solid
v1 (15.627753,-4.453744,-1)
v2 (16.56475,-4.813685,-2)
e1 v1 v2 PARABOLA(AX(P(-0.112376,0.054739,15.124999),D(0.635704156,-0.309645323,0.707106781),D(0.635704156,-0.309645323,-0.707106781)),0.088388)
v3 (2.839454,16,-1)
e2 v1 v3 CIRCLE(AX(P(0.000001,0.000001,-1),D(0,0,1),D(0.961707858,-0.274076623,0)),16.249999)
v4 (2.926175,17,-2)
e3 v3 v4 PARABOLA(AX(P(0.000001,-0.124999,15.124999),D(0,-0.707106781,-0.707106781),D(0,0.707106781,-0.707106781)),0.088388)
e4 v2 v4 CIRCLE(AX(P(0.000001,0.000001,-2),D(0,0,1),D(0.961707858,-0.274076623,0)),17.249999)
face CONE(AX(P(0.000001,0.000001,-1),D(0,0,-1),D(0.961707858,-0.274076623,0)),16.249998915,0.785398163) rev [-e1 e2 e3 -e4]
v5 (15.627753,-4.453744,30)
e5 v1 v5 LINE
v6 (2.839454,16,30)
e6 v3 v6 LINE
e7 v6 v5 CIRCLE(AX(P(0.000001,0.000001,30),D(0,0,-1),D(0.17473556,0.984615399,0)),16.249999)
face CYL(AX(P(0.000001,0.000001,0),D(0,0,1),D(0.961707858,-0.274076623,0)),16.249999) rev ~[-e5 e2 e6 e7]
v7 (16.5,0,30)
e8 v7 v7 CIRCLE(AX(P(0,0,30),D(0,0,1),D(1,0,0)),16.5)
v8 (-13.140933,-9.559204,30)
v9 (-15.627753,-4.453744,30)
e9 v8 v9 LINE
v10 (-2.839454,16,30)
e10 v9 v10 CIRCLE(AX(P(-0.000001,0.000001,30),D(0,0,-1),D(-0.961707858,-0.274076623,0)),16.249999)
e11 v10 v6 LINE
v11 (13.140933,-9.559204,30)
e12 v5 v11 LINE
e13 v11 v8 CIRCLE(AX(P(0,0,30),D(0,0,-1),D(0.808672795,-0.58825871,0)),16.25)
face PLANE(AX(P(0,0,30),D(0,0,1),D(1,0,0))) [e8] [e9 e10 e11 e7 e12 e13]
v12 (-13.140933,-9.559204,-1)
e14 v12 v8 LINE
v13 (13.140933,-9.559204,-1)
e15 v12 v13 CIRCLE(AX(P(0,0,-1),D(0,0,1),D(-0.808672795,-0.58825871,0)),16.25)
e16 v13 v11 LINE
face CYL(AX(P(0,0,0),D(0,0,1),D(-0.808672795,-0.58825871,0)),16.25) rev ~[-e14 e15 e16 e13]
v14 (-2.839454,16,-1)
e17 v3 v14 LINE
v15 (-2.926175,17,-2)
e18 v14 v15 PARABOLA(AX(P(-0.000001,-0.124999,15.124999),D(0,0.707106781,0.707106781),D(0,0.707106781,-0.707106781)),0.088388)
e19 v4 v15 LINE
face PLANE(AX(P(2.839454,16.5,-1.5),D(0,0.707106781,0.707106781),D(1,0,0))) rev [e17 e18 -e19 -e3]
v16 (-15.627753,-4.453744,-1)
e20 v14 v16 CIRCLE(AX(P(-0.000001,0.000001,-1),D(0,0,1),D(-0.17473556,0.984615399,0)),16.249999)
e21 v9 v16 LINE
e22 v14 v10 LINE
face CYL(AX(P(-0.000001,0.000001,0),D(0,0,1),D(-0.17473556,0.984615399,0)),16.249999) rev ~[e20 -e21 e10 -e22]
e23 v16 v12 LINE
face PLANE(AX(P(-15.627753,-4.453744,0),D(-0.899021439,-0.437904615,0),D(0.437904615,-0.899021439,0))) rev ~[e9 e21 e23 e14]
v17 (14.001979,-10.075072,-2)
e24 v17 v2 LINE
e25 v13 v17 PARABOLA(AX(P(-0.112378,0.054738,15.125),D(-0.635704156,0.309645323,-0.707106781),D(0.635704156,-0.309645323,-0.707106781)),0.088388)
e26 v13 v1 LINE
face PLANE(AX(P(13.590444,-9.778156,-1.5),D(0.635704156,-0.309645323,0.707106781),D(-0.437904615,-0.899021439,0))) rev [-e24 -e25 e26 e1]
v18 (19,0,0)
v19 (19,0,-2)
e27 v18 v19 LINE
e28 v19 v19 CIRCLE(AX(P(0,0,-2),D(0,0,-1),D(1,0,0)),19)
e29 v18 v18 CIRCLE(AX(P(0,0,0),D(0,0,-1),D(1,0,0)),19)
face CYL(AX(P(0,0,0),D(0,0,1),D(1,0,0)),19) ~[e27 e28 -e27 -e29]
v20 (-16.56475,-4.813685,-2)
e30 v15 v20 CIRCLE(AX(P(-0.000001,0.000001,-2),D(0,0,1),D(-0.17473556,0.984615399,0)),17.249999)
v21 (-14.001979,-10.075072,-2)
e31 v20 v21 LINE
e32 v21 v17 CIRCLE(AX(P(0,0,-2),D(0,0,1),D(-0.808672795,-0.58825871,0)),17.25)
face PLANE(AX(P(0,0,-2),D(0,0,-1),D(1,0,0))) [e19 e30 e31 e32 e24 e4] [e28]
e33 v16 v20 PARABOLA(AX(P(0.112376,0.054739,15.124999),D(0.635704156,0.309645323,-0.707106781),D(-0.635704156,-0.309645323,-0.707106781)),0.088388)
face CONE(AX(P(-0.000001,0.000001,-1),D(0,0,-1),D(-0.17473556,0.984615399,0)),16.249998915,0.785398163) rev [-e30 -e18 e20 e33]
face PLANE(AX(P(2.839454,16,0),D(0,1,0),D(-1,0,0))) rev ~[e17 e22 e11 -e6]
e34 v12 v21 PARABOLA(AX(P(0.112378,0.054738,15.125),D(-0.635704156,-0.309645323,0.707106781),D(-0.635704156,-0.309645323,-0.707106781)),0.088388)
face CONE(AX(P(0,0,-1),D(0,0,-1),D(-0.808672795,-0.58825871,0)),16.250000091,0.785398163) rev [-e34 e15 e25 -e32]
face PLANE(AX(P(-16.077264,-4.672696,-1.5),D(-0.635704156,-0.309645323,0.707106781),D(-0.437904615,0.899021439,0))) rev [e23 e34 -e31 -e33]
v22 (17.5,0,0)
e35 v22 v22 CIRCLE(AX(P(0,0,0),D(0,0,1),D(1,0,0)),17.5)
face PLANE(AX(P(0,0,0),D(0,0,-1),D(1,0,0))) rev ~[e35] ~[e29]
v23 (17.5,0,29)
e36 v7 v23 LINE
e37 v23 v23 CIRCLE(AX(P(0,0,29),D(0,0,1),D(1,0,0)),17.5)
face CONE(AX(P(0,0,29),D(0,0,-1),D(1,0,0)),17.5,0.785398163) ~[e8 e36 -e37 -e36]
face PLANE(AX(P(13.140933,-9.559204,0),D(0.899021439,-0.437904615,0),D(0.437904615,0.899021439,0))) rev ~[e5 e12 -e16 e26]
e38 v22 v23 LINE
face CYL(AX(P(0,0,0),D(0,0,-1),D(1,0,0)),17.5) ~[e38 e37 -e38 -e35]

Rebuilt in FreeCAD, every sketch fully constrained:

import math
import FreeCAD as App
import Part
import Sketcher

V = App.Vector


def edges_at(feature, points):
    """Names of the edges that pass closest to the given points."""
    edges = feature.Shape.Edges
    near = lambda p: min(range(len(edges)), key=lambda i: edges[i].distToShape(Part.Vertex(*p))[0])
    return sorted({f"Edge{near(p) + 1}" for p in points})

doc = App.newDocument("Part")
params = doc.addObject("Spreadsheet::Sheet", "Params")
for row, (alias, value) in enumerate([
    ("sketch1_diameter", "35 mm"),
    ("sketch1_radius", "16.249999 mm"),
    ("pad1_length", "30 mm"),
    ("sketch2_diameter", "38 mm"),
    ("sketch2_radius", "16.249999 mm"),
    ("pad2_length", "2 mm"),
    ("chamfer_size", "1 mm"),
    ("chamfer2_size", "1 mm"),
], start=1):
    params.set(f"A{row}", alias)
    params.set(f"B{row}", "=" + value)
    params.setAlias(f"B{row}", alias)

body = doc.addObject("PartDesign::Body", "Body")

sketch1 = body.newObject("Sketcher::SketchObject", "Sketch")
sketch1.AttachmentSupport = (doc.getObject("XY_Plane"), [""])
sketch1.MapMode = "FlatFace"
sketch1.addGeometry(Part.Circle(V(0, 0, 0), V(0, 0, 1), 18), False)
sketch1.addGeometry(Part.LineSegment(V(-13, -10, 0), V(-16, -4, 0)), False)
sketch1.addGeometry(Part.ArcOfCircle(Part.Circle(V(0, 0, 0), V(0, 0, 1), 16), math.radians(100), math.radians(196)), False)
sketch1.addGeometry(Part.LineSegment(V(-3, 16, 0), V(3, 16, 0)), False)
sketch1.addGeometry(Part.ArcOfCircle(Part.Circle(V(0, 0, 0), V(0, 0, 1), 16), math.radians(-16), math.radians(80)), False)
sketch1.addGeometry(Part.LineSegment(V(16, -4, 0), V(13, -10, 0)), False)
sketch1.addGeometry(Part.ArcOfCircle(Part.Circle(V(0, 0, 0), V(0, 0, 1), 16), math.radians(-144), math.radians(-36)), False)
sketch1.addConstraint(Sketcher.Constraint("Coincident", 1, 2, 2, 2))
sketch1.addConstraint(Sketcher.Constraint("Coincident", 2, 1, 3, 1))
sketch1.addConstraint(Sketcher.Constraint("Coincident", 3, 2, 4, 2))
sketch1.addConstraint(Sketcher.Constraint("Coincident", 4, 1, 5, 1))
sketch1.addConstraint(Sketcher.Constraint("Coincident", 5, 2, 6, 2))
sketch1.addConstraint(Sketcher.Constraint("Coincident", 6, 1, 1, 1))
sketch1.addConstraint(Sketcher.Constraint("Horizontal", 3))
sketch1.addConstraint(Sketcher.Constraint("Coincident", 0, 3, -1, 1))
sketch1.addConstraint(Sketcher.Constraint("Coincident", 2, 3, -1, 1))
sketch1.addConstraint(Sketcher.Constraint("Coincident", 4, 3, -1, 1))
sketch1.addConstraint(Sketcher.Constraint("Coincident", 6, 3, -1, 1))
sketch1.addConstraint(Sketcher.Constraint("Equal", 2, 4))
sketch1.addConstraint(Sketcher.Constraint("Equal", 4, 6))
sketch1.addConstraint(Sketcher.Constraint("Horizontal", 1, 2, 4, 1))
sketch1.addConstraint(Sketcher.Constraint("Horizontal", 5, 2, 6, 1))
sketch1.addConstraint(Sketcher.Constraint("Diameter", 0, 35.0))
sketch1.addConstraint(Sketcher.Constraint("Radius", 2, 16.249999))
sketch1.addConstraint(Sketcher.Constraint("DistanceY", -1, 1, 2, 1, 16.0))
sketch1.addConstraint(Sketcher.Constraint("DistanceX", 1, 2, 2, 1, 12.788299))
sketch1.addConstraint(Sketcher.Constraint("DistanceX", 5, 2, 4, 1, 2.48682))
sketch1.setExpression("Constraints[15]", "Params.sketch1_diameter")
sketch1.setExpression("Constraints[16]", "Params.sketch1_radius")
pad1 = body.newObject("PartDesign::Pad", "Pad")
pad1.Profile = sketch1
pad1.setExpression("Length", "Params.pad1_length")

sketch2 = body.newObject("Sketcher::SketchObject", "Sketch001")
sketch2.AttachmentSupport = (doc.getObject("XY_Plane"), [""])
sketch2.MapMode = "FlatFace"
sketch2.addGeometry(Part.Circle(V(0, 0, 0), V(0, 0, 1), 19), False)
sketch2.addGeometry(Part.ArcOfCircle(Part.Circle(V(0, 0, 0), V(0, 0, 1), 16), math.radians(100), math.radians(196)), False)
sketch2.addGeometry(Part.LineSegment(V(-16, -4, 0), V(-13, -10, 0)), False)
sketch2.addGeometry(Part.ArcOfCircle(Part.Circle(V(0, 0, 0), V(0, 0, 1), 16), math.radians(-144), math.radians(-36)), False)
sketch2.addGeometry(Part.LineSegment(V(13, -10, 0), V(16, -4, 0)), False)
sketch2.addGeometry(Part.ArcOfCircle(Part.Circle(V(0, 0, 0), V(0, 0, 1), 16), math.radians(-16), math.radians(80)), False)
sketch2.addGeometry(Part.LineSegment(V(3, 16, 0), V(-3, 16, 0)), False)
sketch2.addConstraint(Sketcher.Constraint("Coincident", 1, 2, 2, 1))
sketch2.addConstraint(Sketcher.Constraint("Coincident", 2, 2, 3, 1))
sketch2.addConstraint(Sketcher.Constraint("Coincident", 3, 2, 4, 1))
sketch2.addConstraint(Sketcher.Constraint("Coincident", 4, 2, 5, 1))
sketch2.addConstraint(Sketcher.Constraint("Coincident", 5, 2, 6, 1))
sketch2.addConstraint(Sketcher.Constraint("Coincident", 6, 2, 1, 1))
sketch2.addConstraint(Sketcher.Constraint("Horizontal", 6))
sketch2.addConstraint(Sketcher.Constraint("Coincident", 0, 3, -1, 1))
sketch2.addConstraint(Sketcher.Constraint("Coincident", 1, 3, -1, 1))
sketch2.addConstraint(Sketcher.Constraint("Coincident", 3, 3, -1, 1))
sketch2.addConstraint(Sketcher.Constraint("Coincident", 5, 3, -1, 1))
sketch2.addConstraint(Sketcher.Constraint("Equal", 1, 3))
sketch2.addConstraint(Sketcher.Constraint("Equal", 3, 5))
sketch2.addConstraint(Sketcher.Constraint("Horizontal", 2, 2, 3, 2))
sketch2.addConstraint(Sketcher.Constraint("Horizontal", 1, 2, 4, 2))
sketch2.addConstraint(Sketcher.Constraint("Diameter", 0, 38.0))
sketch2.addConstraint(Sketcher.Constraint("Radius", 1, 16.249999))
sketch2.addConstraint(Sketcher.Constraint("DistanceY", -1, 1, 5, 2, 16.0))
sketch2.addConstraint(Sketcher.Constraint("DistanceX", 5, 2, 4, 2, 12.788299))
sketch2.addConstraint(Sketcher.Constraint("DistanceX", 1, 2, 2, 2, 2.48682))
sketch2.setExpression("Constraints[15]", "Params.sketch2_diameter")
sketch2.setExpression("Constraints[16]", "Params.sketch2_radius")
pad2 = body.newObject("PartDesign::Pad", "Pad001")
pad2.Profile = sketch2
pad2.setExpression("Length", "Params.pad2_length")
pad2.Reversed = True
doc.recompute()

chamfer = body.newObject("PartDesign::Chamfer", "Chamfer")
chamfer.Base = (pad2, edges_at(pad2, [(-17.5, 0, 30)]))
chamfer.setExpression("Size", "Params.chamfer_size")
doc.recompute()

chamfer2 = body.newObject("PartDesign::Chamfer", "Chamfer001")
chamfer2.Base = (chamfer, edges_at(chamfer, [
    (0, -16.25, -2),
    (14.384, -7.006, -2),
    (13.779, 8.615, -2),
    (0, 16, -2),
    (-13.779, 8.615, -2),
    (-14.384, -7.006, -2),
]))
chamfer2.setExpression("Size", "Params.chamfer2_size")

doc.recompute()
